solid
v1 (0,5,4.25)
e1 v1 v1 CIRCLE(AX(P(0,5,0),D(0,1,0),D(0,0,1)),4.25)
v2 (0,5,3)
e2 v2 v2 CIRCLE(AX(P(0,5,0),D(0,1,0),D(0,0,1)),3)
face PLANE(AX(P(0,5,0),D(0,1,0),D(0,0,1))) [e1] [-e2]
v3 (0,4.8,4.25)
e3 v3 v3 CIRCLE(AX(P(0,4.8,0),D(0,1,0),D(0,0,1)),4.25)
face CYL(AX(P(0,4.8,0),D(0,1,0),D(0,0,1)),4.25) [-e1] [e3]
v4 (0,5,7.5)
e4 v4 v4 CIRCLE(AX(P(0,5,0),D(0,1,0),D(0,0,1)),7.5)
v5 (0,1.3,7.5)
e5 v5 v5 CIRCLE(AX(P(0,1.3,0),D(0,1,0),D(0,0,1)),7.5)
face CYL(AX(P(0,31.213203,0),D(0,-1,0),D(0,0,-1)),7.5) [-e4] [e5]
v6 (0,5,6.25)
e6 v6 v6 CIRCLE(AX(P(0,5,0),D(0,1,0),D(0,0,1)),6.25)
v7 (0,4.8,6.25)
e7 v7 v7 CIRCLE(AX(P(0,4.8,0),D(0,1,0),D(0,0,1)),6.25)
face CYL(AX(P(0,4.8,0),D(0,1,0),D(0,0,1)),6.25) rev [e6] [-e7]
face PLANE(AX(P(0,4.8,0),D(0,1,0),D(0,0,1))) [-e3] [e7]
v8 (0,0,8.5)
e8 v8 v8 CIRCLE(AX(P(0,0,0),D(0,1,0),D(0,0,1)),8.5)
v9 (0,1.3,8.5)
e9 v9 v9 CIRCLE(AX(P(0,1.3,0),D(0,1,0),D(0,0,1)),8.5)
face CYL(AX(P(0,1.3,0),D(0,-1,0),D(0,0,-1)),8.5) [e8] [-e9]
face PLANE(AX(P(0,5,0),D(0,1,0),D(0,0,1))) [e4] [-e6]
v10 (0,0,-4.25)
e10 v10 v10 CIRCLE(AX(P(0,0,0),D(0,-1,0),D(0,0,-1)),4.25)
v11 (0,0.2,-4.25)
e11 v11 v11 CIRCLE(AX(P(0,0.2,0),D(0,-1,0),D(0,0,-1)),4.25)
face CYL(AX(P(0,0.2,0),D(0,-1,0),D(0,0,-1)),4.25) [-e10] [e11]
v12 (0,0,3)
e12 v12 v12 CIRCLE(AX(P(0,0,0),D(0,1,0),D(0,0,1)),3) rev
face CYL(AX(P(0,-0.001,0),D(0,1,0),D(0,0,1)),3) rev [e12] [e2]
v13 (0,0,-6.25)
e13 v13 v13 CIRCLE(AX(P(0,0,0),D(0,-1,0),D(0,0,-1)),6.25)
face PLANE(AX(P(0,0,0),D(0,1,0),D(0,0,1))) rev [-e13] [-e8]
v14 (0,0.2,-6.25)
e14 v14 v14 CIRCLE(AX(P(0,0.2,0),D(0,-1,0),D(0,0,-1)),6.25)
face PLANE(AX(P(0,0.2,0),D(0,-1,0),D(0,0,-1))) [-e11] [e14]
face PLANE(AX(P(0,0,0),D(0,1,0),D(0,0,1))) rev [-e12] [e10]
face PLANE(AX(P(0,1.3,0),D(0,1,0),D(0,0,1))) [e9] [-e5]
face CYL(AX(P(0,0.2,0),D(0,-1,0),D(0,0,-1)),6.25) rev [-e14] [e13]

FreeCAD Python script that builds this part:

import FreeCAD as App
import Part
import Sketcher

doc = App.newDocument("Part")
body = doc.addObject("PartDesign::Body", "Body")

# Sketch on XZ plane
sketch1 = doc.addObject("Sketcher::SketchObject", "Sketch")
body.addObject(sketch1)
sketch1.AttachmentSupport = (doc.XZ_Plane, [""])
sketch1.MapMode = "FlatFace"
sketch1.addGeometry(Part.Circle(App.Vector(0, 0, 0), App.Vector(0, 0, 1), 8.5), False)
sketch1.addConstraint([
    Sketcher.Constraint("Coincident", 0, 3, -1, 1),
    Sketcher.Constraint("Diameter", 0, 17.0),
])
pad1 = doc.addObject("PartDesign::Pad", "Pad")
body.addObject(pad1)
pad1.Profile = sketch1
pad1.Length = 1.3
pad1.Reversed = True

# Sketch on XZ plane
sketch2 = doc.addObject("Sketcher::SketchObject", "Sketch001")
body.addObject(sketch2)
sketch2.AttachmentSupport = (doc.XZ_Plane, [""])
sketch2.MapMode = "FlatFace"
sketch2.AttachmentOffset = App.Placement(App.Vector(0, 0, -1.3), App.Rotation())
sketch2.addGeometry(Part.Circle(App.Vector(0, 0, 0), App.Vector(0, 0, 1), 7.5), False)
sketch2.addConstraint([
    Sketcher.Constraint("Coincident", 0, 3, -1, 1),
    Sketcher.Constraint("Diameter", 0, 15.0),
])
pad2 = doc.addObject("PartDesign::Pad", "Pad001")
body.addObject(pad2)
pad2.Profile = sketch2
pad2.Length = 3.7
pad2.Reversed = True

# Sketch on XZ plane
sketch3 = doc.addObject("Sketcher::SketchObject", "Sketch002")
body.addObject(sketch3)
sketch3.AttachmentSupport = (doc.XZ_Plane, [""])
sketch3.MapMode = "FlatFace"
sketch3.AttachmentOffset = App.Placement(App.Vector(0, 0, -5), App.Rotation())
sketch3.addGeometry(Part.Circle(App.Vector(0, 0, 0), App.Vector(0, 0, 1), 3), False)
sketch3.addConstraint([
    Sketcher.Constraint("Coincident", 0, 3, -1, 1),
    Sketcher.Constraint("Diameter", 0, 6.0),
])
pocket1 = doc.addObject("PartDesign::Pocket", "Pocket")
body.addObject(pocket1)
pocket1.Profile = sketch3
pocket1.Type = "UpToFirst"
pocket1.Reversed = True

# Sketch on XZ plane
sketch4 = doc.addObject("Sketcher::SketchObject", "Sketch003")
body.addObject(sketch4)
sketch4.AttachmentSupport = (doc.XZ_Plane, [""])
sketch4.MapMode = "FlatFace"
sketch4.AttachmentOffset = App.Placement(App.Vector(0, 0, -5), App.Rotation())
sketch4.addGeometry([
    Part.Circle(App.Vector(0, 0, 0), App.Vector(0, 0, 1), 6.25),
    Part.Circle(App.Vector(0, 0, 0), App.Vector(0, 0, 1), 4.25),
], False)
sketch4.addConstraint([
    Sketcher.Constraint("Coincident", 0, 3, -1, 1),
    Sketcher.Constraint("Coincident", 1, 3, -1, 1),
    Sketcher.Constraint("Diameter", 0, 12.5),
    Sketcher.Constraint("Diameter", 1, 8.5),
])
pocket2 = doc.addObject("PartDesign::Pocket", "Pocket001")
body.addObject(pocket2)
pocket2.Profile = sketch4
pocket2.Length = 0.2
pocket2.Reversed = True

# Sketch on XZ plane
sketch5 = doc.addObject("Sketcher::SketchObject", "Sketch004")
body.addObject(sketch5)
sketch5.AttachmentSupport = (doc.XZ_Plane, [""])
sketch5.MapMode = "FlatFace"
sketch5.AttachmentOffset = App.Placement(App.Vector(0, 0, -0.2), App.Rotation())
sketch5.addGeometry([
    Part.Circle(App.Vector(0, 0, 0), App.Vector(0, 0, 1), 6.25),
    Part.Circle(App.Vector(0, 0, 0), App.Vector(0, 0, 1), 4.25),
], False)
sketch5.addConstraint([
    Sketcher.Constraint("Coincident", 0, 3, -1, 1),
    Sketcher.Constraint("Coincident", 1, 3, -1, 1),
    Sketcher.Constraint("Diameter", 0, 12.5),
    Sketcher.Constraint("Diameter", 1, 8.5),
])
pocket3 = doc.addObject("PartDesign::Pocket", "Pocket002")
body.addObject(pocket3)
pocket3.Profile = sketch5
pocket3.Length = 0.2
pocket3.Reversed = True

doc.recompute()
